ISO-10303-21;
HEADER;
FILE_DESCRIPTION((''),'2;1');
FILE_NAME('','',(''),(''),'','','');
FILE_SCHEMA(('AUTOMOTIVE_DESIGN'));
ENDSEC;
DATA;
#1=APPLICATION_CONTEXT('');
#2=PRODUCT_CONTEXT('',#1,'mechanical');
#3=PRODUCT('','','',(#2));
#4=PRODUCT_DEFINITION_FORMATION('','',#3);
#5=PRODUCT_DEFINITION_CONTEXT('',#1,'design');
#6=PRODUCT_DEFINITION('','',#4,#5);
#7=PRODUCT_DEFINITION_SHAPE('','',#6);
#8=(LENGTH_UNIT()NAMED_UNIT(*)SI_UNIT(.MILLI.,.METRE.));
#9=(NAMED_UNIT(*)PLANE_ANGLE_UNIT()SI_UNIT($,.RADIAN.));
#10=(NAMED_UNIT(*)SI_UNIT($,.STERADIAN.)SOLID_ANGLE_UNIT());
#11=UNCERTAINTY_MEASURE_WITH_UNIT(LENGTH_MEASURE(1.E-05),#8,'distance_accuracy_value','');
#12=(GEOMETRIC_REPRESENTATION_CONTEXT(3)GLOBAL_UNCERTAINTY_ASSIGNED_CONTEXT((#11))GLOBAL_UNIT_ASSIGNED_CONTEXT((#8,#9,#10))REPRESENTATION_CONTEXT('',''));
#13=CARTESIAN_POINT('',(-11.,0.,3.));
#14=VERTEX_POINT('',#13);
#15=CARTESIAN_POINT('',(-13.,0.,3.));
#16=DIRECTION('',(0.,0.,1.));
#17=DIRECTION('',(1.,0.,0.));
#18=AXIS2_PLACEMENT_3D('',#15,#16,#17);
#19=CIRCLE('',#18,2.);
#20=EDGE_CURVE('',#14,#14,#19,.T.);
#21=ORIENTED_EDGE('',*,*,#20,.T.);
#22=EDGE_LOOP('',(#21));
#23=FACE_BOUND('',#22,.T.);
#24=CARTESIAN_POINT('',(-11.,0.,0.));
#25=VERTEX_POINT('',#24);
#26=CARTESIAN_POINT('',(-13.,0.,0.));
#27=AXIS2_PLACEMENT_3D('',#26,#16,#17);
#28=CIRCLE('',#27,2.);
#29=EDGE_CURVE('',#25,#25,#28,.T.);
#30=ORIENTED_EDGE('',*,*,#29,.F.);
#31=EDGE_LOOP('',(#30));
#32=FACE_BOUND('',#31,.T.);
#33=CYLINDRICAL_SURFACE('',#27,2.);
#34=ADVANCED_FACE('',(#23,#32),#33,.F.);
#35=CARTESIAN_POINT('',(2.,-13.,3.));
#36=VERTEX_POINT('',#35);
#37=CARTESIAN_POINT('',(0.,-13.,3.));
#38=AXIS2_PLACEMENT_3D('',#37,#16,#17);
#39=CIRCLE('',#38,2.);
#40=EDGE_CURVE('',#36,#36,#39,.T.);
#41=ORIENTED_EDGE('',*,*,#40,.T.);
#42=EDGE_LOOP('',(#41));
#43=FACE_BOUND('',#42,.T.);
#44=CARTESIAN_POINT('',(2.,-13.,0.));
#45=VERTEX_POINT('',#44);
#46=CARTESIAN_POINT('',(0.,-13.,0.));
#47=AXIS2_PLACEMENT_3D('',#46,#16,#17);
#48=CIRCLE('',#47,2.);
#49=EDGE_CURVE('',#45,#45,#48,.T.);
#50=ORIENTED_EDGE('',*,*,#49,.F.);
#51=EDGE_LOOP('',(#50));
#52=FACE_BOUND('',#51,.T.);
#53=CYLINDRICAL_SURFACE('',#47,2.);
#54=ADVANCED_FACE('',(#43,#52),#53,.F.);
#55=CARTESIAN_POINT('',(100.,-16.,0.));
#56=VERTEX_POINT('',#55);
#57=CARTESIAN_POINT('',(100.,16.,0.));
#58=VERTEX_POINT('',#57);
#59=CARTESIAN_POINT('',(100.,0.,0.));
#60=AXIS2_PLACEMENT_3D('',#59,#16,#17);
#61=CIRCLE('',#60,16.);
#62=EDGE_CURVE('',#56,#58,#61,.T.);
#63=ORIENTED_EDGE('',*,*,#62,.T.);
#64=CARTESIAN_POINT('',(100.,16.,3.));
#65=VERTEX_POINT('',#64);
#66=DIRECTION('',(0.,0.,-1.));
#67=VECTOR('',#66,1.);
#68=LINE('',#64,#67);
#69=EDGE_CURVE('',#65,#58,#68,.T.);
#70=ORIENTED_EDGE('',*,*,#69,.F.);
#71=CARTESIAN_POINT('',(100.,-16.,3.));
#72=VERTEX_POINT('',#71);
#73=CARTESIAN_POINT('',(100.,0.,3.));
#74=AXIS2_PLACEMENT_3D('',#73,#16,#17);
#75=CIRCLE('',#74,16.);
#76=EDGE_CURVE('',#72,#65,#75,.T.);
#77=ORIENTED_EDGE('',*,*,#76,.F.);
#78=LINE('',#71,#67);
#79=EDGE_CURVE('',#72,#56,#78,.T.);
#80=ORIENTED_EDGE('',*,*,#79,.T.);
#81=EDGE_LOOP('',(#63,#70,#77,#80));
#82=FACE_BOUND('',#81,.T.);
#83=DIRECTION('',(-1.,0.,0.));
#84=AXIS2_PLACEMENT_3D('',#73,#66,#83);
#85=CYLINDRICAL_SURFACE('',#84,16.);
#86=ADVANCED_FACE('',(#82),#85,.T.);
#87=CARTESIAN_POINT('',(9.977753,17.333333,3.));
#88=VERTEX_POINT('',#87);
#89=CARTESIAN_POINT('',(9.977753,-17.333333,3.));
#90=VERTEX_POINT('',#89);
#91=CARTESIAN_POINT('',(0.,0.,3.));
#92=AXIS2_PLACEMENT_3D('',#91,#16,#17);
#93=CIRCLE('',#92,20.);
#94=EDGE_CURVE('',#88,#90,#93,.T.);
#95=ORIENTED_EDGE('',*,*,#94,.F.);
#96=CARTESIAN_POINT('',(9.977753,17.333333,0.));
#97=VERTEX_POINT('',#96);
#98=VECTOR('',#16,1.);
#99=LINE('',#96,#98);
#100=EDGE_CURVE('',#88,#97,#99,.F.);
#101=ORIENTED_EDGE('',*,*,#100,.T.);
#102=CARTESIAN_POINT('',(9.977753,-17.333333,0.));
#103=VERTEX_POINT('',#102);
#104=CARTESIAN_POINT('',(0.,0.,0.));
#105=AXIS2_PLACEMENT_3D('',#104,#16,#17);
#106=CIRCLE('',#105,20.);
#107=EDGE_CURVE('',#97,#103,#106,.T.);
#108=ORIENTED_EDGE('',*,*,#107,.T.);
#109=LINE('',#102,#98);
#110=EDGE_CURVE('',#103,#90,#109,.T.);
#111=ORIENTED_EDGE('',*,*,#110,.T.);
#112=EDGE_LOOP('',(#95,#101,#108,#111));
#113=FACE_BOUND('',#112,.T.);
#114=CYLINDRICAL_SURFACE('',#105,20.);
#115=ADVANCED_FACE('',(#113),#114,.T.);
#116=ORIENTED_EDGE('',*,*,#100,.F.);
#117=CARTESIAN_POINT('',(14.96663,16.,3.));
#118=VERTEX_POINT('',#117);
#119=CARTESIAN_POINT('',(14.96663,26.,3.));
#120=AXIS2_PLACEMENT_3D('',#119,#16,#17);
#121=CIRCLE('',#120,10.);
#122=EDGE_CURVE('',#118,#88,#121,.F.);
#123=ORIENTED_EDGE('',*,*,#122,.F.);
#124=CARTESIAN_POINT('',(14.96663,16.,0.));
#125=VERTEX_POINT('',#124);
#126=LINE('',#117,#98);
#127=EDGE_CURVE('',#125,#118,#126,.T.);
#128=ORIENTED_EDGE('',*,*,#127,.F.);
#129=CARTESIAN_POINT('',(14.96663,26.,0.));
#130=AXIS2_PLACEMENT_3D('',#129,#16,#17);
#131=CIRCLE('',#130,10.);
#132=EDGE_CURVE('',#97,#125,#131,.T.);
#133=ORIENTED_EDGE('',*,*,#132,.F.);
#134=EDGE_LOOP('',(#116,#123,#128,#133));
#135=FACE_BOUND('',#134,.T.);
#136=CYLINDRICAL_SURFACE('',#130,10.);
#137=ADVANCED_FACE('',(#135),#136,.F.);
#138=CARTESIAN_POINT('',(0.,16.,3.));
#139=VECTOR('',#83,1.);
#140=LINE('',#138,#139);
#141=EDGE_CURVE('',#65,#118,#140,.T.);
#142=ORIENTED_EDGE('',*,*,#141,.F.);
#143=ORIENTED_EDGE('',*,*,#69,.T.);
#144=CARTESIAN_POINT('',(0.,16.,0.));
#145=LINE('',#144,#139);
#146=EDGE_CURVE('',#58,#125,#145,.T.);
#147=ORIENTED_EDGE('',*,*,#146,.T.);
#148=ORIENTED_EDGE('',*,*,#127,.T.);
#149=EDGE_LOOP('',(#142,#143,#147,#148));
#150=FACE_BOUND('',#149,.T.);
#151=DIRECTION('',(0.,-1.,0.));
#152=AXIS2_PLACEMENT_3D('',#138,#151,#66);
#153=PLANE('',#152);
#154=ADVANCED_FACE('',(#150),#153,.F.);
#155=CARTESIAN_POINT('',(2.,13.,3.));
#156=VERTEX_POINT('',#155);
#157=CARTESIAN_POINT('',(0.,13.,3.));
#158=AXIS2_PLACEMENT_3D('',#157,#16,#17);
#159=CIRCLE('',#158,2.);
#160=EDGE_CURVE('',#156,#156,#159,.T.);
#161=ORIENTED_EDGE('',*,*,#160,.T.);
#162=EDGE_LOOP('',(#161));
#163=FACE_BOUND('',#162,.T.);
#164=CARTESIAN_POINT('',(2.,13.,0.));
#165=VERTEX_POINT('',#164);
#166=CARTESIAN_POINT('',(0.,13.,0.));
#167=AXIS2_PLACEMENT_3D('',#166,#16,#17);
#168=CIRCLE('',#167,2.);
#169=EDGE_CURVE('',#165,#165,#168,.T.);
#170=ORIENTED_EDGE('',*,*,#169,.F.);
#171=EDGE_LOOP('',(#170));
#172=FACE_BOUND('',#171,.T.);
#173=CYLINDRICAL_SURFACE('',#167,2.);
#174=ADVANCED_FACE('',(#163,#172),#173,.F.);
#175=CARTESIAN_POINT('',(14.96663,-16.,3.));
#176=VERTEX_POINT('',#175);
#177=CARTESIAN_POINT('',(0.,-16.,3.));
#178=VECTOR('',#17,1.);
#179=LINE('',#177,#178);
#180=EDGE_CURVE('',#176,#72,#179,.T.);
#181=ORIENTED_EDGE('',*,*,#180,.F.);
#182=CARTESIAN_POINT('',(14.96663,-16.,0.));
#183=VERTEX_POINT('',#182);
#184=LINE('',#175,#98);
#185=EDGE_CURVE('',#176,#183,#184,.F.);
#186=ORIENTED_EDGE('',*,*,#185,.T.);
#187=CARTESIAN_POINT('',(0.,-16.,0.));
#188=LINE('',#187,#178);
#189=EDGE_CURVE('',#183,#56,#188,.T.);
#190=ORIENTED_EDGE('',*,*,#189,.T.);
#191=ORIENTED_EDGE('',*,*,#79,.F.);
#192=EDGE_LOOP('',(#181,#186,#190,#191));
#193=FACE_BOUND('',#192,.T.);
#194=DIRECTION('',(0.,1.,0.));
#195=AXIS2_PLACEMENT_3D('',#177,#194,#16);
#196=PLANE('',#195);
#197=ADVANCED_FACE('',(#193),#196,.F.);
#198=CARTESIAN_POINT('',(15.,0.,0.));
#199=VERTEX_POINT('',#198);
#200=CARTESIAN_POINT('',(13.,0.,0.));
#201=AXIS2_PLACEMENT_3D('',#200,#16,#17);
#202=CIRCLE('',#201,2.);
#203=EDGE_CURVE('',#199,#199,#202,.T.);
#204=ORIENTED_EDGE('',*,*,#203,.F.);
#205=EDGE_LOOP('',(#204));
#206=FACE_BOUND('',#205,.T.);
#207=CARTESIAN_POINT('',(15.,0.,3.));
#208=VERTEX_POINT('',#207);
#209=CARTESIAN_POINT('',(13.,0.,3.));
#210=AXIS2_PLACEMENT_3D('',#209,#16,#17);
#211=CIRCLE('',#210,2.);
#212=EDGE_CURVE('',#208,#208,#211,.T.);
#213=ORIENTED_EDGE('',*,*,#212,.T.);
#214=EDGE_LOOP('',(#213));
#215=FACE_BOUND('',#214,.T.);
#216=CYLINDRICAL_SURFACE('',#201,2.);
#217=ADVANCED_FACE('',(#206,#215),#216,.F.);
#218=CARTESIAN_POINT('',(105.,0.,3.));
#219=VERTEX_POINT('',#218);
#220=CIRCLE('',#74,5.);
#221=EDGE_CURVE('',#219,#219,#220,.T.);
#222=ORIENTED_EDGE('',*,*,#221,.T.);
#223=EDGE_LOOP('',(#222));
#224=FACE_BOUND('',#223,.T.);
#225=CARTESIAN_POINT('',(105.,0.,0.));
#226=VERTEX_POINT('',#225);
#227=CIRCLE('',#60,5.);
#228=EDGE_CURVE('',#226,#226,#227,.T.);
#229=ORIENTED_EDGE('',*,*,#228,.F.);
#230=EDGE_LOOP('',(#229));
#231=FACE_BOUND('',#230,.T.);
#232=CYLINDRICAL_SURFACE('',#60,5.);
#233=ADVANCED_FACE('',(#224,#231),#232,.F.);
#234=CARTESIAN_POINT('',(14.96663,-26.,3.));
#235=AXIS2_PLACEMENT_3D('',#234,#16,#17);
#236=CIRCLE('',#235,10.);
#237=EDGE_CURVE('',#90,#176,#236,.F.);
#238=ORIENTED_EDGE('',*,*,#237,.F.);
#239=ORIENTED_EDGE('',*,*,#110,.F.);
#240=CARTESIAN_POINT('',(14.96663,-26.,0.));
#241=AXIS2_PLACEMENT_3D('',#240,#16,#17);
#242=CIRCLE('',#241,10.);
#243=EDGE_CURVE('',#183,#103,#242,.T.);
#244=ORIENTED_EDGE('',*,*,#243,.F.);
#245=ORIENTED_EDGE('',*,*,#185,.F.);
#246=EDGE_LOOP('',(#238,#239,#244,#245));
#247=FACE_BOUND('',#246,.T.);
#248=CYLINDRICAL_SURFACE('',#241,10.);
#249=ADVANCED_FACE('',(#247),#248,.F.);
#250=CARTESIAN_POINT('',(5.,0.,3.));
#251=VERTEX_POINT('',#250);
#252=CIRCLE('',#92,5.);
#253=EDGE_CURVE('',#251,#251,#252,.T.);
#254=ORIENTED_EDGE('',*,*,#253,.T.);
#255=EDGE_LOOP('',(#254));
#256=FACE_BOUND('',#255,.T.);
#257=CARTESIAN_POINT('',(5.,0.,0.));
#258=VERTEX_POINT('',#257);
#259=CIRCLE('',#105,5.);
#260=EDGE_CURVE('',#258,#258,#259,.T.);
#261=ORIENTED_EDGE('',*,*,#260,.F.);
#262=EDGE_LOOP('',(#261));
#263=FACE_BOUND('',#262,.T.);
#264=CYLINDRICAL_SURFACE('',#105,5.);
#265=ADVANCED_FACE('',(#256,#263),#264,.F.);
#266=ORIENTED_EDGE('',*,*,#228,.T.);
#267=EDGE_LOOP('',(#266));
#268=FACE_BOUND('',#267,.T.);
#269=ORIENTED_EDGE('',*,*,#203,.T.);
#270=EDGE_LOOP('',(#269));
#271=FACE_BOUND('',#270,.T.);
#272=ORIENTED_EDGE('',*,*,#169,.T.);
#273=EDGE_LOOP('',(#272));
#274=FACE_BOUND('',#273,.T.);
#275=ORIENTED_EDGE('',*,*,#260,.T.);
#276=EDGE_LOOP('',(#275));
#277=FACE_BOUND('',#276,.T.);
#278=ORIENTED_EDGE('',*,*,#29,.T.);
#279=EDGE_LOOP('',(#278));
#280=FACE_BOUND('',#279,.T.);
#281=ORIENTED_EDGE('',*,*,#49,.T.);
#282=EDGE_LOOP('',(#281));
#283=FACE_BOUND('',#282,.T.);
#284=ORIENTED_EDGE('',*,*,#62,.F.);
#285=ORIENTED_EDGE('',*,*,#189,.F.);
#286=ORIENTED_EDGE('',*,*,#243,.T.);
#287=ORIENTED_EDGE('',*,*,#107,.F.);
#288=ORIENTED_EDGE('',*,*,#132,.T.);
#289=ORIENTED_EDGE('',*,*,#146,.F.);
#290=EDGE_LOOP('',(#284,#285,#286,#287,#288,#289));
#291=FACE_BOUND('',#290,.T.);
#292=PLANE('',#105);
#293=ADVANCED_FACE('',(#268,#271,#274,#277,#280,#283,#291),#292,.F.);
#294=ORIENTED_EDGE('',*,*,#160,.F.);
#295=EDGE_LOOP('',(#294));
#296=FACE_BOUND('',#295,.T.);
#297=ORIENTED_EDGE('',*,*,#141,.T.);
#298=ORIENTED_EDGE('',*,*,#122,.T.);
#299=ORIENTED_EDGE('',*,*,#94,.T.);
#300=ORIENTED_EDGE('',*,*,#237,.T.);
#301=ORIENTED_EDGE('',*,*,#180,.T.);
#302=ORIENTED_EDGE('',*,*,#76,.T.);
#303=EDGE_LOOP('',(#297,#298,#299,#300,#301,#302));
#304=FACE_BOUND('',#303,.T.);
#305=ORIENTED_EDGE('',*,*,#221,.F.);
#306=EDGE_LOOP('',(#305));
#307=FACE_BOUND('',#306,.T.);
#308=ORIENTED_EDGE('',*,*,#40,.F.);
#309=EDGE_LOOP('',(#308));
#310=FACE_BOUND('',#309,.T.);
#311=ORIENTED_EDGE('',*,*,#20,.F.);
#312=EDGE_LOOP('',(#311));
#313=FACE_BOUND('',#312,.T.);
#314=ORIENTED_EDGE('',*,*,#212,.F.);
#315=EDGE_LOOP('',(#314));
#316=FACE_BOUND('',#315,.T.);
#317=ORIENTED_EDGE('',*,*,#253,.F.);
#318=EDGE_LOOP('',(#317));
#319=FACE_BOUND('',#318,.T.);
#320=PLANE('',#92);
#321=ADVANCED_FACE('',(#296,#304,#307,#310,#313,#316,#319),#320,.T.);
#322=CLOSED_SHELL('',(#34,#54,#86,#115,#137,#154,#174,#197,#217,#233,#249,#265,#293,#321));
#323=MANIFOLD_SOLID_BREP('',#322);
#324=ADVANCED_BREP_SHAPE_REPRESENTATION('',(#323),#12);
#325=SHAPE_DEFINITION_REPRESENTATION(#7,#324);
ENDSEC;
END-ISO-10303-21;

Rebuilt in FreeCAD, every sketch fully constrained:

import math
import FreeCAD as App
import Part
import Sketcher


def edges_at(feature, points):
    """Names of the edges that pass closest to the given points."""
    edges = feature.Shape.Edges
    near = lambda p: min(range(len(edges)), key=lambda i: edges[i].distToShape(Part.Vertex(*p))[0])
    return sorted({f"Edge{near(p) + 1}" for p in points})

doc = App.newDocument("Part")
body = doc.addObject("PartDesign::Body", "Body")

# Sketch on XY plane
sketch1 = body.newObject("Sketcher::SketchObject", "Sketch")
sketch1.AttachmentSupport = (doc.getObject("XY_Plane"), [""])
sketch1.MapMode = "FlatFace"
sketch1.addGeometry([
    Part.LineSegment(App.Vector(100, 16, 0), App.Vector(0, 16, 0)),
    Part.ArcOfCircle(Part.Circle(App.Vector(0, 0, 0), App.Vector(0, 0, 1), 16), math.radians(90), math.radians(270)),
    Part.LineSegment(App.Vector(0, -16, 0), App.Vector(100, -16, 0)),
    Part.ArcOfCircle(Part.Circle(App.Vector(100, 0, 0), App.Vector(0, 0, 1), 16), math.radians(-90), math.radians(90)),
], False)
sketch1.addConstraint([
    Sketcher.Constraint("Tangent", 0, 2, 1, 1),
    Sketcher.Constraint("Tangent", 1, 2, 2, 1),
    Sketcher.Constraint("Tangent", 2, 2, 3, 1),
    Sketcher.Constraint("Tangent", 3, 2, 0, 1),
    Sketcher.Constraint("Horizontal", 0),
    Sketcher.Constraint("Horizontal", 2),
    Sketcher.Constraint("Coincident", 1, 3, -1, 1),
    Sketcher.Constraint("Radius", 1, 16.0),
    Sketcher.Constraint("DistanceX", 0, 2, 0, 1, 100.0),
])
pad1 = body.newObject("PartDesign::Pad", "Pad")
pad1.Profile = sketch1
pad1.Length = 3

# Sketch on XY plane
sketch2 = body.newObject("Sketcher::SketchObject", "Sketch001")
sketch2.AttachmentSupport = (doc.getObject("XY_Plane"), [""])
sketch2.MapMode = "FlatFace"
sketch2.AttachmentOffset = App.Placement(App.Vector(0, 0, 3), App.Rotation())
sketch2.addGeometry(Part.Circle(App.Vector(0, 0, 0), App.Vector(0, 0, 1), 20), False)
sketch2.addConstraint([
    Sketcher.Constraint("Coincident", 0, 3, -1, 1),
    Sketcher.Constraint("Diameter", 0, 40.0),
])
pad2 = body.newObject("PartDesign::Pad", "Pad001")
pad2.Profile = sketch2
pad2.Length = 3
pad2.Reversed = True
doc.recompute()

fillet = body.newObject("PartDesign::Fillet", "Fillet")
fillet.Base = (pad2, edges_at(pad2, [(12, -16, 1.5), (12, 16, 1.5)]))
fillet.Radius = 10

# Sketch on XY plane
sketch3 = body.newObject("Sketcher::SketchObject", "Sketch002")
sketch3.AttachmentSupport = (doc.getObject("XY_Plane"), [""])
sketch3.MapMode = "FlatFace"
sketch3.AttachmentOffset = App.Placement(App.Vector(0, 0, 3), App.Rotation())
sketch3.addGeometry([
    Part.Circle(App.Vector(0, 13, 0), App.Vector(0, 0, 1), 2),  # 0
    Part.Circle(App.Vector(13, 0, 0), App.Vector(0, 0, 1), 2),  # 1
    Part.Circle(App.Vector(0, -13, 0), App.Vector(0, 0, 1), 2),  # 2
    Part.Circle(App.Vector(-13, 0, 0), App.Vector(0, 0, 1), 2),  # 3
    Part.Circle(App.Vector(0, 0, 0), App.Vector(0, 0, 1), 5),  # 4
    Part.Circle(App.Vector(100, 0, 0), App.Vector(0, 0, 1), 5),  # 5
], False)
sketch3.addConstraint([
    Sketcher.Constraint("Coincident", 4, 3, -1, 1),
    Sketcher.Constraint("Equal", 0, 1),
    Sketcher.Constraint("Equal", 1, 2),
    Sketcher.Constraint("Equal", 2, 3),
    Sketcher.Constraint("Equal", 4, 5),
    Sketcher.Constraint("Symmetric", 0, 3, 2, 3, -1, 1),
    Sketcher.Constraint("Symmetric", 1, 3, 3, 3, -1, 1),
    Sketcher.Constraint("PointOnObject", 0, 3, -2),
    Sketcher.Constraint("PointOnObject", 1, 3, -1),
    Sketcher.Constraint("PointOnObject", 5, 3, -1),
    Sketcher.Constraint("Diameter", 0, 4.0),
    Sketcher.Constraint("Diameter", 4, 10.0),
    Sketcher.Constraint("DistanceY", -1, 1, 0, 3, 13.0),
    Sketcher.Constraint("DistanceX", -1, 1, 1, 3, 13.0),
    Sketcher.Constraint("DistanceX", -1, 1, 5, 3, 100.0),
])
pocket1 = body.newObject("PartDesign::Pocket", "Pocket")
pocket1.Profile = sketch3
pocket1.Length = 3

doc.recompute()
